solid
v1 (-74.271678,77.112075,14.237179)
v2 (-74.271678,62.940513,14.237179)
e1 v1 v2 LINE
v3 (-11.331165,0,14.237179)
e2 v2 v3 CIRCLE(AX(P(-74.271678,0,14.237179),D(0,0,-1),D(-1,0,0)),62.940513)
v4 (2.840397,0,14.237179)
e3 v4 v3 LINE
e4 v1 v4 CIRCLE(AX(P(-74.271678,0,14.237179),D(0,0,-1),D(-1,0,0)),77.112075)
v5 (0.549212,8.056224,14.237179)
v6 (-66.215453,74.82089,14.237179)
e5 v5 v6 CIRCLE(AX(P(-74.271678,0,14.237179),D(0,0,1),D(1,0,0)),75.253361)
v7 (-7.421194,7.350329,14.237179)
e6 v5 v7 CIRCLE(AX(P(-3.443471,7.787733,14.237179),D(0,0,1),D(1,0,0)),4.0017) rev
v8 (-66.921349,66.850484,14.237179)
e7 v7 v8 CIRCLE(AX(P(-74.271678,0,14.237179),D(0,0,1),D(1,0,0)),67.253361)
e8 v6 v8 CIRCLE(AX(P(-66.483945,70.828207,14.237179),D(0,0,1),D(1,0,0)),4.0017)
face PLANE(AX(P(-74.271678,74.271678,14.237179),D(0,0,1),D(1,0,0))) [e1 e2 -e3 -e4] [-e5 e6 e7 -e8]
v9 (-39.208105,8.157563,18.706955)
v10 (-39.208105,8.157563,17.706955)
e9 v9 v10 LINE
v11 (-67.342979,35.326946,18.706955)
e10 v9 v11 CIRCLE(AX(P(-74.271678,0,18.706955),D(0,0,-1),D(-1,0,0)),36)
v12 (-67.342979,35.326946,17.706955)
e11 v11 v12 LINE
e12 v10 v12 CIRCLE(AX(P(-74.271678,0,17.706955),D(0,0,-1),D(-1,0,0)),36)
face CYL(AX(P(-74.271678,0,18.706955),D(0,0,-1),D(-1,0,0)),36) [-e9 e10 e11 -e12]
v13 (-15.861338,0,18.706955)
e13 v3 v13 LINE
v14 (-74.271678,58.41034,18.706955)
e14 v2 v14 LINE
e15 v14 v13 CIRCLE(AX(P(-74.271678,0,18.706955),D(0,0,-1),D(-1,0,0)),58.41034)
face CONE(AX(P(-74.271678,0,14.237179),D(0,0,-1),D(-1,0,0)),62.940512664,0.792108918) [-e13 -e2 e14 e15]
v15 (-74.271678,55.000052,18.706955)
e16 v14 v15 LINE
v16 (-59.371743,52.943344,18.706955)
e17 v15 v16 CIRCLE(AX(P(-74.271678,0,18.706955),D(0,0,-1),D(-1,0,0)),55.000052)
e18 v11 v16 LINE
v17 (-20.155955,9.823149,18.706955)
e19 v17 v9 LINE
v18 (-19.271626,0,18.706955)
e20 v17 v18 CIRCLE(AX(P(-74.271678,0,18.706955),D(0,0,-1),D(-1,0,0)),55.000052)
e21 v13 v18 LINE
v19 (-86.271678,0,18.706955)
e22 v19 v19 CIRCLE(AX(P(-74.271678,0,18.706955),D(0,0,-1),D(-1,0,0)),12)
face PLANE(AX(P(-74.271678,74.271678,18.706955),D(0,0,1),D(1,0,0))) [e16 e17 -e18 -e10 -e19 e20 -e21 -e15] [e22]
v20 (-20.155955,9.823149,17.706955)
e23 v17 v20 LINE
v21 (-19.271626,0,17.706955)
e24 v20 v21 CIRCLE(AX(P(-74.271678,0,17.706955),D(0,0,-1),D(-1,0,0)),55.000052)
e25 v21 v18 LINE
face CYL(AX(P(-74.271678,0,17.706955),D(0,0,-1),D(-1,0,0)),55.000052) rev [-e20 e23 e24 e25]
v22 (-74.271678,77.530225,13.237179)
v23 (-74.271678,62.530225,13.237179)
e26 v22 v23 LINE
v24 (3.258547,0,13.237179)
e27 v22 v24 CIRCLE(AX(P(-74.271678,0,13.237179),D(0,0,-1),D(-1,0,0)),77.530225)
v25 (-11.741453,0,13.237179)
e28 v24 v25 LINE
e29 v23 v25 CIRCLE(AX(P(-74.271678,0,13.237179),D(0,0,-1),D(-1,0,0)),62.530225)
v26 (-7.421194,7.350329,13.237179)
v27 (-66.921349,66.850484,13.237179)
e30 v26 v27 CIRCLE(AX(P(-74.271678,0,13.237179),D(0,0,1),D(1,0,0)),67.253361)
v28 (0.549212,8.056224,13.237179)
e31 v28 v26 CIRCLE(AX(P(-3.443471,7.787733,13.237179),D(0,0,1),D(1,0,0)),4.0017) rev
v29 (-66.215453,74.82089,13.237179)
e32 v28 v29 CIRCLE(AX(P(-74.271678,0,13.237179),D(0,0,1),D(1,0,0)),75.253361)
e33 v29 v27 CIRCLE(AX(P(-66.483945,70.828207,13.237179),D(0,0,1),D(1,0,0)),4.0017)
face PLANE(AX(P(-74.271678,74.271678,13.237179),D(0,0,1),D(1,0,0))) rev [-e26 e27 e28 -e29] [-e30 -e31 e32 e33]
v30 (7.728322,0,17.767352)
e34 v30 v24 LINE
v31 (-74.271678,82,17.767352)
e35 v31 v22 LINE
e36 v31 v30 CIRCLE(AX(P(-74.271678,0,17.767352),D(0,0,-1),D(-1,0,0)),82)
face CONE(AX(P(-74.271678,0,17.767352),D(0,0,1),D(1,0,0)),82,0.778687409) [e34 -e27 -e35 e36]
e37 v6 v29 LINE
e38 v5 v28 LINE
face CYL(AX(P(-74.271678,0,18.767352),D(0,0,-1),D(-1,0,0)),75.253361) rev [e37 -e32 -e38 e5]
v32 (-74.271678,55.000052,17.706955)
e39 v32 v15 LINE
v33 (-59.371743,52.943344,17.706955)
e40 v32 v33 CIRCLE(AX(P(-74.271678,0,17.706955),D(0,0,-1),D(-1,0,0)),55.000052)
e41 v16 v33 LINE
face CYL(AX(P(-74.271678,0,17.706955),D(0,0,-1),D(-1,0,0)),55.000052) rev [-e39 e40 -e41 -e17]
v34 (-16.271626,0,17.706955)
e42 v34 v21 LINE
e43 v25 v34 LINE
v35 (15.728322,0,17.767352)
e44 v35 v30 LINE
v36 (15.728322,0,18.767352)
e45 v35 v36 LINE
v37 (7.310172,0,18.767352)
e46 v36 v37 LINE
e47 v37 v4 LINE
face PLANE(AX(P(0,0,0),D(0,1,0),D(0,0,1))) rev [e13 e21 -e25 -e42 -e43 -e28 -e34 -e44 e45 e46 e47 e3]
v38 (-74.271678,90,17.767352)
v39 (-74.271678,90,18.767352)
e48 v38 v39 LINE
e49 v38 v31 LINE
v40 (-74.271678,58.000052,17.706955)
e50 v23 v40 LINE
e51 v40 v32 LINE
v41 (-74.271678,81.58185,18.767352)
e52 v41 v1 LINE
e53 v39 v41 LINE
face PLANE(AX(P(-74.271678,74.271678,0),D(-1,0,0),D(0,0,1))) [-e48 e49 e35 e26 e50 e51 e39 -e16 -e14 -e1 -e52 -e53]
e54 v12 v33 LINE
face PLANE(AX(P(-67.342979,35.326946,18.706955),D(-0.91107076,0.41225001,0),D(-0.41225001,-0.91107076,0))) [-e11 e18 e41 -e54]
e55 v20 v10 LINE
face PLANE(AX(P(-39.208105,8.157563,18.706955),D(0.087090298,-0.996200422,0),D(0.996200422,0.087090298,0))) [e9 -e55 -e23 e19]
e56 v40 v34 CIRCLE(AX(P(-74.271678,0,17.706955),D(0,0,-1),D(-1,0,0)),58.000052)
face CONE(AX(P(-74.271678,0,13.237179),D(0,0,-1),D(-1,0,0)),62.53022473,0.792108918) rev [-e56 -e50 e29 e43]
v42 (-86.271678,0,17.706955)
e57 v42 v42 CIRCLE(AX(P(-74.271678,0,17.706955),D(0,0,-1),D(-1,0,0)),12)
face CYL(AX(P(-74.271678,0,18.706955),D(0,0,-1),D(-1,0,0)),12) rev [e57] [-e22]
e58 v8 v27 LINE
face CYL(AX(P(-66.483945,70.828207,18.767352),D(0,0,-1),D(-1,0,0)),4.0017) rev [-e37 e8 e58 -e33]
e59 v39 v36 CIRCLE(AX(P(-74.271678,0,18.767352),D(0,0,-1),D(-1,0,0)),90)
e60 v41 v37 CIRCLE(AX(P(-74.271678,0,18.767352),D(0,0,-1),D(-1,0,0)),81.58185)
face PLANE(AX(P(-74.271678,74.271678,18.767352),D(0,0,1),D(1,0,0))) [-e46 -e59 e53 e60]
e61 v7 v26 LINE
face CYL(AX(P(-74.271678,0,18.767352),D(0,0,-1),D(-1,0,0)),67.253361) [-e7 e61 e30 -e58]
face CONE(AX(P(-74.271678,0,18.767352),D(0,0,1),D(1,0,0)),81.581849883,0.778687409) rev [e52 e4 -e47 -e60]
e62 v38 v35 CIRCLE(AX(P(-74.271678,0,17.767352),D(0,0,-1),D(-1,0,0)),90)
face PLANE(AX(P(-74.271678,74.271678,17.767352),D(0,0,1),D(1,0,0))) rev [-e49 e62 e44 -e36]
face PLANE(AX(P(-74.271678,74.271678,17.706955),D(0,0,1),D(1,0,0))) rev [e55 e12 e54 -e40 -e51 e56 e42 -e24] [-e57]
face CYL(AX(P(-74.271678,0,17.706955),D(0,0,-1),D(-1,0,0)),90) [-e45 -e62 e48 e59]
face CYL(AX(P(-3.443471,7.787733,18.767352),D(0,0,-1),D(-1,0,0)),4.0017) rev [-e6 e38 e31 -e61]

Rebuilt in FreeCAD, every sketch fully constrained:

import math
import FreeCAD as App
import Part
import Sketcher
from FreeCAD import Vector


def add_polygon(sketch, points):
    """Adds a closed chain of lines whose ends are joined by coincident constraints."""
    first, n = sketch.GeometryCount, len(points)
    for a, b in zip(points, points[1:] + points[:1]):
        sketch.addGeometry(Part.LineSegment(App.Vector(*a, 0), App.Vector(*b, 0)), False)
    for i in range(n):
        sketch.addConstraint(Sketcher.Constraint("Coincident", first + i, 2, first + (i + 1) % n, 1))

doc = App.newDocument("Part")
body = doc.addObject("PartDesign::Body", "Body")

# Sketch on XZ plane
sketch1 = body.newObject("Sketcher::SketchObject", "Sketch")
sketch1.AttachmentSupport = (doc.getObject("XZ_Plane"), [""])
sketch1.MapMode = "FlatFace"
add_polygon(sketch1, [(-16.3, 17.7), (-19.3, 17.7), (-19.3, 18.7), (-15.9, 18.7), (-11.3, 14.2), (2.8, 14.2), (7.3, 18.8), (15.7, 18.8), (15.7, 17.8), (7.7, 17.8), (3.3, 13.2), (-11.7, 13.2)])  # lines 0-11
sketch1.addGeometry(Part.LineSegment(Vector(-74.3, 13.2, 0), Vector(-74.3, 18.8, 0)), True)  # axis
sketch1.addConstraint([
    Sketcher.Constraint("Horizontal", 0),
    Sketcher.Constraint("Vertical", 1),
    Sketcher.Constraint("Horizontal", 2),
    Sketcher.Constraint("Horizontal", 4),
    Sketcher.Constraint("Horizontal", 6),
    Sketcher.Constraint("Vertical", 7),
    Sketcher.Constraint("Horizontal", 8),
    Sketcher.Constraint("Horizontal", 10),
    Sketcher.Constraint("Vertical", 12),
    Sketcher.Constraint("Perpendicular", 3, 5),
    Sketcher.Constraint("Parallel", 5, 9),
    Sketcher.Constraint("Perpendicular", 9, 11),
    Sketcher.Constraint("Horizontal", 10, 2, 12, 1),
    Sketcher.Constraint("Horizontal", 6, 2, 12, 2),
    Sketcher.Constraint("Equal", 1, 7),
    Sketcher.Constraint("Equal", 3, 5),
    Sketcher.Constraint("Equal", 5, 9),
    Sketcher.Constraint("DistanceX", 0, 2, 0, 1, 3.0),
    Sketcher.Constraint("DistanceX", 8, 2, 8, 1, 8.0),
    Sketcher.Constraint("DistanceX", 10, 2, 10, 1, 15.0),
    Sketcher.Constraint("DistanceY", 1, 1, 1, 2, 1.0),
    Sketcher.Constraint("DistanceX", 4, 1, 4, 2, 14.171562),
    Sketcher.Constraint("DistanceX", 6, 1, 6, 2, 8.41815),
    Sketcher.Constraint("DistanceY", 12, 1, 12, 2, 5.530173),
    Sketcher.Constraint("DistanceY", -1, 1, 3, 2, 14.237179),
    Sketcher.Constraint("DistanceX", 2, 2, 5, 2, 23.17151),
    Sketcher.Constraint("DistanceX", 12, 1, 2, 2, 58.41034),
    Sketcher.Constraint("DistanceX", 0, 2, -1, 1, 19.271626),
])
revolution = body.newObject("PartDesign::Revolution", "Revolution")
revolution.Profile = sketch1
revolution.ReferenceAxis = (sketch1, ["Axis0"])
revolution.Angle = 90

# Sketch on XY plane
sketch2 = body.newObject("Sketcher::SketchObject", "Sketch001")
sketch2.AttachmentSupport = (doc.getObject("XY_Plane"), [""])
sketch2.MapMode = "FlatFace"
sketch2.AttachmentOffset = App.Placement(Vector(0, 0, 18.706955), App.Rotation())
sketch2.addGeometry([
    Part.LineSegment(Vector(-67, 35, 0), Vector(-59, 53, 0)),  # 0
    Part.ArcOfCircle(Part.Circle(Vector(-74, 0, 0), Vector(0, 0, 1), 55), math.radians(10), math.radians(74)),  # 1
    Part.LineSegment(Vector(-20, 10, 0), Vector(-39, 8, 0)),  # 2
    Part.ArcOfCircle(Part.Circle(Vector(-74, 0, 0), Vector(0, 0, 1), 36), math.radians(79), math.radians(373)),  # 3
    Part.Circle(Vector(-74, 0, 0), Vector(0, 0, 1), 12),  # 4
], False)
sketch2.addConstraint([
    Sketcher.Constraint("Coincident", 0, 2, 1, 2),
    Sketcher.Constraint("Coincident", 1, 1, 2, 1),
    Sketcher.Constraint("Coincident", 2, 2, 3, 2),
    Sketcher.Constraint("Coincident", 3, 1, 0, 1),
    Sketcher.Constraint("Coincident", 3, 3, 1, 3),
    Sketcher.Constraint("Coincident", 4, 3, 1, 3),
    Sketcher.Constraint("PointOnObject", 1, 3, -1),
    Sketcher.Constraint("Diameter", 4, 24.0),
    Sketcher.Constraint("Radius", 3, 36.0),
    Sketcher.Constraint("Radius", 1, 55.000052),
    Sketcher.Constraint("DistanceX", 3, 3, 3, 1, 6.928699),
    Sketcher.Constraint("DistanceY", -1, 1, 1, 1, 9.823149),
    Sketcher.Constraint("DistanceX", 3, 1, -1, 1, 67.342979),
    Sketcher.Constraint("DistanceX", 0, 2, 1, 1, 39.215788),
    Sketcher.Constraint("DistanceX", 2, 2, 1, 1, 19.05215),
])
pad1 = body.newObject("PartDesign::Pad", "Pad")
pad1.Profile = sketch2
pad1.Length = 1
pad1.Reversed = True

# Sketch on XY plane
sketch3 = body.newObject("Sketcher::SketchObject", "Sketch002")
sketch3.AttachmentSupport = (doc.getObject("XY_Plane"), [""])
sketch3.MapMode = "FlatFace"
sketch3.AttachmentOffset = App.Placement(Vector(0, 0, 13.237179), App.Rotation())
sketch3.addGeometry([
    Part.ArcOfCircle(Part.Circle(Vector(-3.4, 7.8, 0), Vector(0, 0, 1), 4), math.radians(-174), math.radians(4)),
    Part.ArcOfCircle(Part.Circle(Vector(-74.3, 0, 0), Vector(0, 0, 1), 67.3), math.radians(6), math.radians(84)),
    Part.ArcOfCircle(Part.Circle(Vector(-66.5, 70.8, 0), Vector(0, 0, 1), 4), math.radians(86), math.radians(264)),
    Part.ArcOfCircle(Part.Circle(Vector(-74.3, 0, 0), Vector(0, 0, 1), 75.3), math.radians(6), math.radians(84)),
], False)
sketch3.addConstraint([
    Sketcher.Constraint("Coincident", 0, 1, 1, 1),
    Sketcher.Constraint("Coincident", 1, 2, 2, 2),
    Sketcher.Constraint("Coincident", 2, 1, 3, 2),
    Sketcher.Constraint("Coincident", 3, 1, 0, 2),
    Sketcher.Constraint("Coincident", 3, 3, 1, 3),
    Sketcher.Constraint("Equal", 0, 2),
    Sketcher.Constraint("PointOnObject", 1, 3, -1),
    Sketcher.Constraint("Radius", 0, 4.0017),
    Sketcher.Constraint("Radius", 1, 67.253361),
    Sketcher.Constraint("Radius", 3, 75.253361),
    Sketcher.Constraint("DistanceX", 0, 3, -1, 1, 3.443471),
    Sketcher.Constraint("DistanceY", -1, 1, 0, 1, 7.350329),
    Sketcher.Constraint("DistanceX", 1, 2, -1, 1, 66.921349),
    Sketcher.Constraint("DistanceY", -1, 1, 2, 1, 74.82089),
    Sketcher.Constraint("DistanceY", 0, 3, 1, 2, 59.062751),
])
pocket1 = body.newObject("PartDesign::Pocket", "Pocket")
pocket1.Profile = sketch3
pocket1.Type = "ThroughAll"
pocket1.Midplane = True

doc.recompute()
